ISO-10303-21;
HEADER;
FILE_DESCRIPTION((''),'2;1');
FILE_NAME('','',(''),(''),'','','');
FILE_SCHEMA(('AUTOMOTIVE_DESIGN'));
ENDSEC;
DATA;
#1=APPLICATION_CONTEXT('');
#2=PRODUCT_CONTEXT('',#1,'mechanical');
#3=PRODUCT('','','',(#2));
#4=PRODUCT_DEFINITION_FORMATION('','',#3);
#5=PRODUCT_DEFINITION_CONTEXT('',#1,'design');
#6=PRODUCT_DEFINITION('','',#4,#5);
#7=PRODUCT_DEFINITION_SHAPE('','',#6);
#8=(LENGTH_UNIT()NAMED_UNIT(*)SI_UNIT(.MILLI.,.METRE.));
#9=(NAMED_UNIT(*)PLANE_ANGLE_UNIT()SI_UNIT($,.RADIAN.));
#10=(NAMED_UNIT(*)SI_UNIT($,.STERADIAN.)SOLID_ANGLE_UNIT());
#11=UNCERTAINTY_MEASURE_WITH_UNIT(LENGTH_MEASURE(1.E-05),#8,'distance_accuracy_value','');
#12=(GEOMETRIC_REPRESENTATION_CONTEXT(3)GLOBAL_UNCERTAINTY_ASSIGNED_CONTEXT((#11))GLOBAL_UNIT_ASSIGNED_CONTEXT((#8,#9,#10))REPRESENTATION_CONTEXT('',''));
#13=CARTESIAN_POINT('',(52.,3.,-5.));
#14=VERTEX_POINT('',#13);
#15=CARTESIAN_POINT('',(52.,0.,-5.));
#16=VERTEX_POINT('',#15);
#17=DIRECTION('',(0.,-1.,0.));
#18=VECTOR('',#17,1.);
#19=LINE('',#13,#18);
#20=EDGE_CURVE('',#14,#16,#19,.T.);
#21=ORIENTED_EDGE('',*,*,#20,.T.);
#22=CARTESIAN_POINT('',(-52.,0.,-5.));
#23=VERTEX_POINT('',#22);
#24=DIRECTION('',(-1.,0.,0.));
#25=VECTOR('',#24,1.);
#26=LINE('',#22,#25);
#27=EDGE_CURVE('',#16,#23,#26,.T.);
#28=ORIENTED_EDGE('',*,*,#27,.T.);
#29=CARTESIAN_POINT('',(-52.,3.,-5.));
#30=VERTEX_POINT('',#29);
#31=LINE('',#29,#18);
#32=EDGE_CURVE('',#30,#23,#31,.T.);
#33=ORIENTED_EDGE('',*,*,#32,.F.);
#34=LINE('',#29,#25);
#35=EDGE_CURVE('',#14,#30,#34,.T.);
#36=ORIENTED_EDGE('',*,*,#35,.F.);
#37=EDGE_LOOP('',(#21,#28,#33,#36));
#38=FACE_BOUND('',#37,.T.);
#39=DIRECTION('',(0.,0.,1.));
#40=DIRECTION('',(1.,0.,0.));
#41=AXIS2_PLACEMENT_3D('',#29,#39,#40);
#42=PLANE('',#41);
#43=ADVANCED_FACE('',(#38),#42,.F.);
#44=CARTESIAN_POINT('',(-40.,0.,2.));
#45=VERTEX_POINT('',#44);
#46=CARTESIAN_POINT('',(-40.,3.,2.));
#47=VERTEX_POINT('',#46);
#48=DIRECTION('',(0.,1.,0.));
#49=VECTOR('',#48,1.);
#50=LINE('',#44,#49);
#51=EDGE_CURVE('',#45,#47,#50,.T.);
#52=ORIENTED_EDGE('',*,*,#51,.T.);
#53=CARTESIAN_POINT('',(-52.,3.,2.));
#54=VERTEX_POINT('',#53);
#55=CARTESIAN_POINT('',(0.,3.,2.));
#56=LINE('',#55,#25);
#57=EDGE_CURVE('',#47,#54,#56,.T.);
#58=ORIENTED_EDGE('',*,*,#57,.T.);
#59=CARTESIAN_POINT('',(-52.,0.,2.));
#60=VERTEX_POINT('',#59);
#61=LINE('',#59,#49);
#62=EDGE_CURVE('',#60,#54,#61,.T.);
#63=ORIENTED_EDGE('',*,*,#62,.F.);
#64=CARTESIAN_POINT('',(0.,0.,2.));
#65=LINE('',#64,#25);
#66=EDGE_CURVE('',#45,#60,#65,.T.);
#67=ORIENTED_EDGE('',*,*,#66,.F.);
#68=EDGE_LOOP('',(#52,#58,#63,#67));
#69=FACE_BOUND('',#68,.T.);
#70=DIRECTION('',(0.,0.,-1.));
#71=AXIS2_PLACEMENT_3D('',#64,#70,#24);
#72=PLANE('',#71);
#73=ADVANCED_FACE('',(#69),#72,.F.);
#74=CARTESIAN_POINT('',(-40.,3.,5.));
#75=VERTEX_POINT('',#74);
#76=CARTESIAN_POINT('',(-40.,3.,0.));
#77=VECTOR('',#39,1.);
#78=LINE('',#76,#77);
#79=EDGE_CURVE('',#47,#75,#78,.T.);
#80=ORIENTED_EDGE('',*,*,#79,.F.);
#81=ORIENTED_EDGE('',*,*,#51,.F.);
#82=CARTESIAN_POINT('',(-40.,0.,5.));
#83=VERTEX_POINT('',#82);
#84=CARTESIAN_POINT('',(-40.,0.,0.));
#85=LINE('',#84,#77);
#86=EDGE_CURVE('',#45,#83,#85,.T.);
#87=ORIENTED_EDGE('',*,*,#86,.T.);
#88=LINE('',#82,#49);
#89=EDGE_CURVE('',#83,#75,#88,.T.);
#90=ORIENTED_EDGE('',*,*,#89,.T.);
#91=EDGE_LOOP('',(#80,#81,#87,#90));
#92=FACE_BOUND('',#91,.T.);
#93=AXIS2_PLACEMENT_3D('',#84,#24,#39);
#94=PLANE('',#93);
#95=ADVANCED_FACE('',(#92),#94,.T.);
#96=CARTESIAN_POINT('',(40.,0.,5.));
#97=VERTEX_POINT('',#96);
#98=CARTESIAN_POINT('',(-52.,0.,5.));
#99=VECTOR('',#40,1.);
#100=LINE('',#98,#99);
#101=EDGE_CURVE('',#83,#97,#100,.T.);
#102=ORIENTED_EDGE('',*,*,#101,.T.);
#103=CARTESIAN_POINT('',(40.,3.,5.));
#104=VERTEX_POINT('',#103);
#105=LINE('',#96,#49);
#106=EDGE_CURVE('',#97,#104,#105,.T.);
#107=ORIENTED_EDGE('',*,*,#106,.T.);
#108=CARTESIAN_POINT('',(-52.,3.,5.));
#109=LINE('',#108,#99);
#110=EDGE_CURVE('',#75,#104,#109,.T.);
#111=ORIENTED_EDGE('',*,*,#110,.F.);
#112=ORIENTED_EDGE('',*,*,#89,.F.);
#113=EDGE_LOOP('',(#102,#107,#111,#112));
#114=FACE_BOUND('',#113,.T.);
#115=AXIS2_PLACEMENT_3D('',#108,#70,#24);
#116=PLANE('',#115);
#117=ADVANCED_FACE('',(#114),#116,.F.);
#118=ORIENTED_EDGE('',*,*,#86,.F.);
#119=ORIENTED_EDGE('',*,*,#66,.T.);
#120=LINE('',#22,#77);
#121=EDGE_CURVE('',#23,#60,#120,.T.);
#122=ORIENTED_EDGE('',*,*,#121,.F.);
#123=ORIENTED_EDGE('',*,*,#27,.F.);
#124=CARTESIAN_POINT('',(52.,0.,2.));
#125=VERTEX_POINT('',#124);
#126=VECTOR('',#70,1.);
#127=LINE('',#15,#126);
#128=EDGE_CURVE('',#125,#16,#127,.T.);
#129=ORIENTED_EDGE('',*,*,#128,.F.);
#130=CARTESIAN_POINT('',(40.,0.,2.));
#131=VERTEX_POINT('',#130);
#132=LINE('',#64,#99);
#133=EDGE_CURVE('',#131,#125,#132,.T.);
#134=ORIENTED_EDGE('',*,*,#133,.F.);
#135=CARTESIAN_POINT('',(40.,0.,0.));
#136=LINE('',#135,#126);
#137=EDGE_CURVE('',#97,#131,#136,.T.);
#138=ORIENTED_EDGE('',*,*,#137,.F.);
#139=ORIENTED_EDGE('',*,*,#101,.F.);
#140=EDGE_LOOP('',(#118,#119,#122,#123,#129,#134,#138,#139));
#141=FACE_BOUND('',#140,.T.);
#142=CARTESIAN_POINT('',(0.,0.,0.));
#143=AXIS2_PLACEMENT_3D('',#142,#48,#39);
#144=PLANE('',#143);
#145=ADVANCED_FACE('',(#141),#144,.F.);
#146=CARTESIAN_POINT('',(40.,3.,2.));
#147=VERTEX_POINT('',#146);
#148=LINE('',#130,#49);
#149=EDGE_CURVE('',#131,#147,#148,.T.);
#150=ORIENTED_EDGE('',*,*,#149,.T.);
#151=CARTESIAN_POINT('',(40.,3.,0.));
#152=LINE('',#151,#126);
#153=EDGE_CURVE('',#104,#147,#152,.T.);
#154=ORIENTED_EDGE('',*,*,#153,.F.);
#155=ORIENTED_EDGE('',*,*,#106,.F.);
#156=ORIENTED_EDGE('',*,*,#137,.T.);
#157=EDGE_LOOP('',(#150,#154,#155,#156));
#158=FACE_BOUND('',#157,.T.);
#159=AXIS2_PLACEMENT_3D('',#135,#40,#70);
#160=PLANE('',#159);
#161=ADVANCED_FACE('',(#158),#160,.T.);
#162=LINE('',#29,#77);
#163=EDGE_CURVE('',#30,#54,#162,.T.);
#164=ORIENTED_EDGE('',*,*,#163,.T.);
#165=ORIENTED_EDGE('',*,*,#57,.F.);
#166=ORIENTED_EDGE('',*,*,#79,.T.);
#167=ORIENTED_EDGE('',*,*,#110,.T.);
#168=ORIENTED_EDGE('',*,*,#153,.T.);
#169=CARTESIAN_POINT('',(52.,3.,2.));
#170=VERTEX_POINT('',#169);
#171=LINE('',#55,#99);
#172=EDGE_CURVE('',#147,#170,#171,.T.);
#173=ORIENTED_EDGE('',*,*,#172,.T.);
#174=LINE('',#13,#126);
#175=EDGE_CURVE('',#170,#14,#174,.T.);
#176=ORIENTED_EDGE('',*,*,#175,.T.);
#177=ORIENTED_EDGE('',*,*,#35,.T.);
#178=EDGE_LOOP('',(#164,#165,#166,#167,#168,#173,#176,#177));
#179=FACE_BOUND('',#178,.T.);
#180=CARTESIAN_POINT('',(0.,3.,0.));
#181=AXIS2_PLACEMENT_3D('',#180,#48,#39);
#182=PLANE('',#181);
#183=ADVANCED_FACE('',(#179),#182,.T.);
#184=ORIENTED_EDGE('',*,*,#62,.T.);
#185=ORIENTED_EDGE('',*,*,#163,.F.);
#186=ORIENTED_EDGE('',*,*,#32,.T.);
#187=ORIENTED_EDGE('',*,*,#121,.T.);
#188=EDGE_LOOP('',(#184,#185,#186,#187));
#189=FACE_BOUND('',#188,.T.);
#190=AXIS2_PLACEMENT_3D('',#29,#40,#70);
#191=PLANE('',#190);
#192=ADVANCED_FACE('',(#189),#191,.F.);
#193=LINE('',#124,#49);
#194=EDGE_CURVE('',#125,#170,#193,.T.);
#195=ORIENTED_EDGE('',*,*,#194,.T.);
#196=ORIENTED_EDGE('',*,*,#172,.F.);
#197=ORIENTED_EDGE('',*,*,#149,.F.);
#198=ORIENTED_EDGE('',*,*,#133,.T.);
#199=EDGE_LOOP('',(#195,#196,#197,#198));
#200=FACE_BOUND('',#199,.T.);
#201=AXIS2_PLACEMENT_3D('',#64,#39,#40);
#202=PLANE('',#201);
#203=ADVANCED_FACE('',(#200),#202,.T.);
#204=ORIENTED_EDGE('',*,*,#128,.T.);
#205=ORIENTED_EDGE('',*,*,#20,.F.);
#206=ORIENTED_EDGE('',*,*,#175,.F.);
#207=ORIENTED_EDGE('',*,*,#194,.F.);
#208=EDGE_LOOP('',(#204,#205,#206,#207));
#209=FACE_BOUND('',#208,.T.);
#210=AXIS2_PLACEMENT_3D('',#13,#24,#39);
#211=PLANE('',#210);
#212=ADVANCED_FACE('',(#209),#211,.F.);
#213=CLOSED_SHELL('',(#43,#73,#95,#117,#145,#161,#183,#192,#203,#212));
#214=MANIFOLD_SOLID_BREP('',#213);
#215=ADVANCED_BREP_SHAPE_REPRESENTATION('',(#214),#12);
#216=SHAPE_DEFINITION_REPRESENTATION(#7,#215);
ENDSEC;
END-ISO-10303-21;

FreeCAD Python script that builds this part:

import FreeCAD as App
import Part
import Sketcher
Q = App.Units.Quantity


def add_polygon(sketch, points):
    """Adds a closed chain of lines whose ends are joined by coincident constraints."""
    first, n = sketch.GeometryCount, len(points)
    for a, b in zip(points, points[1:] + points[:1]):
        sketch.addGeometry(Part.LineSegment(App.Vector(*a, 0), App.Vector(*b, 0)), False)
    for i in range(n):
        sketch.addConstraint(Sketcher.Constraint("Coincident", first + i, 2, first + (i + 1) % n, 1))

doc = App.newDocument("Part")
body = doc.addObject("PartDesign::Body", "Body")

# Sketch on XZ plane
sketch1 = doc.addObject("Sketcher::SketchObject", "Sketch")
body.addObject(sketch1)
sketch1.AttachmentSupport = (doc.XZ_Plane, [""])
sketch1.MapMode = "FlatFace"
add_polygon(sketch1, [(-52, -5), (-52, 5), (52, 5), (52, -5)])  # lines 0-3
sketch1.addConstraint(Sketcher.Constraint("Vertical", 0))
sketch1.addConstraint(Sketcher.Constraint("Horizontal", 1))
sketch1.addConstraint(Sketcher.Constraint("Vertical", 2))
sketch1.addConstraint(Sketcher.Constraint("Horizontal", 3))
sketch1.addConstraint(Sketcher.Constraint("Symmetric", 0, 2, 2, 2, -1, 1))
sketch1.addConstraint(Sketcher.Constraint("DistanceX", 1, 1, 1, 2, Q("104 mm")))
sketch1.addConstraint(Sketcher.Constraint("DistanceY", 0, 1, 0, 2, Q("10 mm")))
pad1 = doc.addObject("PartDesign::Pad", "Pad")
body.addObject(pad1)
pad1.Profile = sketch1
pad1.Length = 3
pad1.Reversed = True

# Sketch on XZ plane
sketch2 = doc.addObject("Sketcher::SketchObject", "Sketch001")
body.addObject(sketch2)
sketch2.AttachmentSupport = (doc.XZ_Plane, [""])
sketch2.MapMode = "FlatFace"
sketch2.AttachmentOffset = App.Placement(App.Vector(0, 0, -3), App.Rotation())
add_polygon(sketch2, [(-52, 2), (-52, 5), (-40, 5), (-40, 2)])  # lines 0-3
add_polygon(sketch2, [(40, 2), (40, 5), (52, 5), (52, 2)])  # lines 4-7
sketch2.addConstraint(Sketcher.Constraint("Vertical", 0))
sketch2.addConstraint(Sketcher.Constraint("Horizontal", 1))
sketch2.addConstraint(Sketcher.Constraint("Vertical", 2))
sketch2.addConstraint(Sketcher.Constraint("Horizontal", 3))
sketch2.addConstraint(Sketcher.Constraint("Vertical", 4))
sketch2.addConstraint(Sketcher.Constraint("Horizontal", 5))
sketch2.addConstraint(Sketcher.Constraint("Vertical", 6))
sketch2.addConstraint(Sketcher.Constraint("Horizontal", 7))
sketch2.addConstraint(Sketcher.Constraint("Symmetric", 1, 2, 4, 2, -2))
sketch2.addConstraint(Sketcher.Constraint("Symmetric", 3, 2, 6, 2, -2))
sketch2.addConstraint(Sketcher.Constraint("DistanceX", 1, 1, 1, 2, Q("12 mm")))
sketch2.addConstraint(Sketcher.Constraint("DistanceY", 0, 1, 0, 2, Q("3 mm")))
sketch2.addConstraint(Sketcher.Constraint("DistanceX", 0, 2, -1, 1, Q("52 mm")))
sketch2.addConstraint(Sketcher.Constraint("DistanceY", -1, 1, 0, 2, Q("5 mm")))
pocket1 = doc.addObject("PartDesign::Pocket", "Pocket")
body.addObject(pocket1)
pocket1.Profile = sketch2
pocket1.Type = "ThroughAll"
pocket1.Reversed = True

doc.recompute()
